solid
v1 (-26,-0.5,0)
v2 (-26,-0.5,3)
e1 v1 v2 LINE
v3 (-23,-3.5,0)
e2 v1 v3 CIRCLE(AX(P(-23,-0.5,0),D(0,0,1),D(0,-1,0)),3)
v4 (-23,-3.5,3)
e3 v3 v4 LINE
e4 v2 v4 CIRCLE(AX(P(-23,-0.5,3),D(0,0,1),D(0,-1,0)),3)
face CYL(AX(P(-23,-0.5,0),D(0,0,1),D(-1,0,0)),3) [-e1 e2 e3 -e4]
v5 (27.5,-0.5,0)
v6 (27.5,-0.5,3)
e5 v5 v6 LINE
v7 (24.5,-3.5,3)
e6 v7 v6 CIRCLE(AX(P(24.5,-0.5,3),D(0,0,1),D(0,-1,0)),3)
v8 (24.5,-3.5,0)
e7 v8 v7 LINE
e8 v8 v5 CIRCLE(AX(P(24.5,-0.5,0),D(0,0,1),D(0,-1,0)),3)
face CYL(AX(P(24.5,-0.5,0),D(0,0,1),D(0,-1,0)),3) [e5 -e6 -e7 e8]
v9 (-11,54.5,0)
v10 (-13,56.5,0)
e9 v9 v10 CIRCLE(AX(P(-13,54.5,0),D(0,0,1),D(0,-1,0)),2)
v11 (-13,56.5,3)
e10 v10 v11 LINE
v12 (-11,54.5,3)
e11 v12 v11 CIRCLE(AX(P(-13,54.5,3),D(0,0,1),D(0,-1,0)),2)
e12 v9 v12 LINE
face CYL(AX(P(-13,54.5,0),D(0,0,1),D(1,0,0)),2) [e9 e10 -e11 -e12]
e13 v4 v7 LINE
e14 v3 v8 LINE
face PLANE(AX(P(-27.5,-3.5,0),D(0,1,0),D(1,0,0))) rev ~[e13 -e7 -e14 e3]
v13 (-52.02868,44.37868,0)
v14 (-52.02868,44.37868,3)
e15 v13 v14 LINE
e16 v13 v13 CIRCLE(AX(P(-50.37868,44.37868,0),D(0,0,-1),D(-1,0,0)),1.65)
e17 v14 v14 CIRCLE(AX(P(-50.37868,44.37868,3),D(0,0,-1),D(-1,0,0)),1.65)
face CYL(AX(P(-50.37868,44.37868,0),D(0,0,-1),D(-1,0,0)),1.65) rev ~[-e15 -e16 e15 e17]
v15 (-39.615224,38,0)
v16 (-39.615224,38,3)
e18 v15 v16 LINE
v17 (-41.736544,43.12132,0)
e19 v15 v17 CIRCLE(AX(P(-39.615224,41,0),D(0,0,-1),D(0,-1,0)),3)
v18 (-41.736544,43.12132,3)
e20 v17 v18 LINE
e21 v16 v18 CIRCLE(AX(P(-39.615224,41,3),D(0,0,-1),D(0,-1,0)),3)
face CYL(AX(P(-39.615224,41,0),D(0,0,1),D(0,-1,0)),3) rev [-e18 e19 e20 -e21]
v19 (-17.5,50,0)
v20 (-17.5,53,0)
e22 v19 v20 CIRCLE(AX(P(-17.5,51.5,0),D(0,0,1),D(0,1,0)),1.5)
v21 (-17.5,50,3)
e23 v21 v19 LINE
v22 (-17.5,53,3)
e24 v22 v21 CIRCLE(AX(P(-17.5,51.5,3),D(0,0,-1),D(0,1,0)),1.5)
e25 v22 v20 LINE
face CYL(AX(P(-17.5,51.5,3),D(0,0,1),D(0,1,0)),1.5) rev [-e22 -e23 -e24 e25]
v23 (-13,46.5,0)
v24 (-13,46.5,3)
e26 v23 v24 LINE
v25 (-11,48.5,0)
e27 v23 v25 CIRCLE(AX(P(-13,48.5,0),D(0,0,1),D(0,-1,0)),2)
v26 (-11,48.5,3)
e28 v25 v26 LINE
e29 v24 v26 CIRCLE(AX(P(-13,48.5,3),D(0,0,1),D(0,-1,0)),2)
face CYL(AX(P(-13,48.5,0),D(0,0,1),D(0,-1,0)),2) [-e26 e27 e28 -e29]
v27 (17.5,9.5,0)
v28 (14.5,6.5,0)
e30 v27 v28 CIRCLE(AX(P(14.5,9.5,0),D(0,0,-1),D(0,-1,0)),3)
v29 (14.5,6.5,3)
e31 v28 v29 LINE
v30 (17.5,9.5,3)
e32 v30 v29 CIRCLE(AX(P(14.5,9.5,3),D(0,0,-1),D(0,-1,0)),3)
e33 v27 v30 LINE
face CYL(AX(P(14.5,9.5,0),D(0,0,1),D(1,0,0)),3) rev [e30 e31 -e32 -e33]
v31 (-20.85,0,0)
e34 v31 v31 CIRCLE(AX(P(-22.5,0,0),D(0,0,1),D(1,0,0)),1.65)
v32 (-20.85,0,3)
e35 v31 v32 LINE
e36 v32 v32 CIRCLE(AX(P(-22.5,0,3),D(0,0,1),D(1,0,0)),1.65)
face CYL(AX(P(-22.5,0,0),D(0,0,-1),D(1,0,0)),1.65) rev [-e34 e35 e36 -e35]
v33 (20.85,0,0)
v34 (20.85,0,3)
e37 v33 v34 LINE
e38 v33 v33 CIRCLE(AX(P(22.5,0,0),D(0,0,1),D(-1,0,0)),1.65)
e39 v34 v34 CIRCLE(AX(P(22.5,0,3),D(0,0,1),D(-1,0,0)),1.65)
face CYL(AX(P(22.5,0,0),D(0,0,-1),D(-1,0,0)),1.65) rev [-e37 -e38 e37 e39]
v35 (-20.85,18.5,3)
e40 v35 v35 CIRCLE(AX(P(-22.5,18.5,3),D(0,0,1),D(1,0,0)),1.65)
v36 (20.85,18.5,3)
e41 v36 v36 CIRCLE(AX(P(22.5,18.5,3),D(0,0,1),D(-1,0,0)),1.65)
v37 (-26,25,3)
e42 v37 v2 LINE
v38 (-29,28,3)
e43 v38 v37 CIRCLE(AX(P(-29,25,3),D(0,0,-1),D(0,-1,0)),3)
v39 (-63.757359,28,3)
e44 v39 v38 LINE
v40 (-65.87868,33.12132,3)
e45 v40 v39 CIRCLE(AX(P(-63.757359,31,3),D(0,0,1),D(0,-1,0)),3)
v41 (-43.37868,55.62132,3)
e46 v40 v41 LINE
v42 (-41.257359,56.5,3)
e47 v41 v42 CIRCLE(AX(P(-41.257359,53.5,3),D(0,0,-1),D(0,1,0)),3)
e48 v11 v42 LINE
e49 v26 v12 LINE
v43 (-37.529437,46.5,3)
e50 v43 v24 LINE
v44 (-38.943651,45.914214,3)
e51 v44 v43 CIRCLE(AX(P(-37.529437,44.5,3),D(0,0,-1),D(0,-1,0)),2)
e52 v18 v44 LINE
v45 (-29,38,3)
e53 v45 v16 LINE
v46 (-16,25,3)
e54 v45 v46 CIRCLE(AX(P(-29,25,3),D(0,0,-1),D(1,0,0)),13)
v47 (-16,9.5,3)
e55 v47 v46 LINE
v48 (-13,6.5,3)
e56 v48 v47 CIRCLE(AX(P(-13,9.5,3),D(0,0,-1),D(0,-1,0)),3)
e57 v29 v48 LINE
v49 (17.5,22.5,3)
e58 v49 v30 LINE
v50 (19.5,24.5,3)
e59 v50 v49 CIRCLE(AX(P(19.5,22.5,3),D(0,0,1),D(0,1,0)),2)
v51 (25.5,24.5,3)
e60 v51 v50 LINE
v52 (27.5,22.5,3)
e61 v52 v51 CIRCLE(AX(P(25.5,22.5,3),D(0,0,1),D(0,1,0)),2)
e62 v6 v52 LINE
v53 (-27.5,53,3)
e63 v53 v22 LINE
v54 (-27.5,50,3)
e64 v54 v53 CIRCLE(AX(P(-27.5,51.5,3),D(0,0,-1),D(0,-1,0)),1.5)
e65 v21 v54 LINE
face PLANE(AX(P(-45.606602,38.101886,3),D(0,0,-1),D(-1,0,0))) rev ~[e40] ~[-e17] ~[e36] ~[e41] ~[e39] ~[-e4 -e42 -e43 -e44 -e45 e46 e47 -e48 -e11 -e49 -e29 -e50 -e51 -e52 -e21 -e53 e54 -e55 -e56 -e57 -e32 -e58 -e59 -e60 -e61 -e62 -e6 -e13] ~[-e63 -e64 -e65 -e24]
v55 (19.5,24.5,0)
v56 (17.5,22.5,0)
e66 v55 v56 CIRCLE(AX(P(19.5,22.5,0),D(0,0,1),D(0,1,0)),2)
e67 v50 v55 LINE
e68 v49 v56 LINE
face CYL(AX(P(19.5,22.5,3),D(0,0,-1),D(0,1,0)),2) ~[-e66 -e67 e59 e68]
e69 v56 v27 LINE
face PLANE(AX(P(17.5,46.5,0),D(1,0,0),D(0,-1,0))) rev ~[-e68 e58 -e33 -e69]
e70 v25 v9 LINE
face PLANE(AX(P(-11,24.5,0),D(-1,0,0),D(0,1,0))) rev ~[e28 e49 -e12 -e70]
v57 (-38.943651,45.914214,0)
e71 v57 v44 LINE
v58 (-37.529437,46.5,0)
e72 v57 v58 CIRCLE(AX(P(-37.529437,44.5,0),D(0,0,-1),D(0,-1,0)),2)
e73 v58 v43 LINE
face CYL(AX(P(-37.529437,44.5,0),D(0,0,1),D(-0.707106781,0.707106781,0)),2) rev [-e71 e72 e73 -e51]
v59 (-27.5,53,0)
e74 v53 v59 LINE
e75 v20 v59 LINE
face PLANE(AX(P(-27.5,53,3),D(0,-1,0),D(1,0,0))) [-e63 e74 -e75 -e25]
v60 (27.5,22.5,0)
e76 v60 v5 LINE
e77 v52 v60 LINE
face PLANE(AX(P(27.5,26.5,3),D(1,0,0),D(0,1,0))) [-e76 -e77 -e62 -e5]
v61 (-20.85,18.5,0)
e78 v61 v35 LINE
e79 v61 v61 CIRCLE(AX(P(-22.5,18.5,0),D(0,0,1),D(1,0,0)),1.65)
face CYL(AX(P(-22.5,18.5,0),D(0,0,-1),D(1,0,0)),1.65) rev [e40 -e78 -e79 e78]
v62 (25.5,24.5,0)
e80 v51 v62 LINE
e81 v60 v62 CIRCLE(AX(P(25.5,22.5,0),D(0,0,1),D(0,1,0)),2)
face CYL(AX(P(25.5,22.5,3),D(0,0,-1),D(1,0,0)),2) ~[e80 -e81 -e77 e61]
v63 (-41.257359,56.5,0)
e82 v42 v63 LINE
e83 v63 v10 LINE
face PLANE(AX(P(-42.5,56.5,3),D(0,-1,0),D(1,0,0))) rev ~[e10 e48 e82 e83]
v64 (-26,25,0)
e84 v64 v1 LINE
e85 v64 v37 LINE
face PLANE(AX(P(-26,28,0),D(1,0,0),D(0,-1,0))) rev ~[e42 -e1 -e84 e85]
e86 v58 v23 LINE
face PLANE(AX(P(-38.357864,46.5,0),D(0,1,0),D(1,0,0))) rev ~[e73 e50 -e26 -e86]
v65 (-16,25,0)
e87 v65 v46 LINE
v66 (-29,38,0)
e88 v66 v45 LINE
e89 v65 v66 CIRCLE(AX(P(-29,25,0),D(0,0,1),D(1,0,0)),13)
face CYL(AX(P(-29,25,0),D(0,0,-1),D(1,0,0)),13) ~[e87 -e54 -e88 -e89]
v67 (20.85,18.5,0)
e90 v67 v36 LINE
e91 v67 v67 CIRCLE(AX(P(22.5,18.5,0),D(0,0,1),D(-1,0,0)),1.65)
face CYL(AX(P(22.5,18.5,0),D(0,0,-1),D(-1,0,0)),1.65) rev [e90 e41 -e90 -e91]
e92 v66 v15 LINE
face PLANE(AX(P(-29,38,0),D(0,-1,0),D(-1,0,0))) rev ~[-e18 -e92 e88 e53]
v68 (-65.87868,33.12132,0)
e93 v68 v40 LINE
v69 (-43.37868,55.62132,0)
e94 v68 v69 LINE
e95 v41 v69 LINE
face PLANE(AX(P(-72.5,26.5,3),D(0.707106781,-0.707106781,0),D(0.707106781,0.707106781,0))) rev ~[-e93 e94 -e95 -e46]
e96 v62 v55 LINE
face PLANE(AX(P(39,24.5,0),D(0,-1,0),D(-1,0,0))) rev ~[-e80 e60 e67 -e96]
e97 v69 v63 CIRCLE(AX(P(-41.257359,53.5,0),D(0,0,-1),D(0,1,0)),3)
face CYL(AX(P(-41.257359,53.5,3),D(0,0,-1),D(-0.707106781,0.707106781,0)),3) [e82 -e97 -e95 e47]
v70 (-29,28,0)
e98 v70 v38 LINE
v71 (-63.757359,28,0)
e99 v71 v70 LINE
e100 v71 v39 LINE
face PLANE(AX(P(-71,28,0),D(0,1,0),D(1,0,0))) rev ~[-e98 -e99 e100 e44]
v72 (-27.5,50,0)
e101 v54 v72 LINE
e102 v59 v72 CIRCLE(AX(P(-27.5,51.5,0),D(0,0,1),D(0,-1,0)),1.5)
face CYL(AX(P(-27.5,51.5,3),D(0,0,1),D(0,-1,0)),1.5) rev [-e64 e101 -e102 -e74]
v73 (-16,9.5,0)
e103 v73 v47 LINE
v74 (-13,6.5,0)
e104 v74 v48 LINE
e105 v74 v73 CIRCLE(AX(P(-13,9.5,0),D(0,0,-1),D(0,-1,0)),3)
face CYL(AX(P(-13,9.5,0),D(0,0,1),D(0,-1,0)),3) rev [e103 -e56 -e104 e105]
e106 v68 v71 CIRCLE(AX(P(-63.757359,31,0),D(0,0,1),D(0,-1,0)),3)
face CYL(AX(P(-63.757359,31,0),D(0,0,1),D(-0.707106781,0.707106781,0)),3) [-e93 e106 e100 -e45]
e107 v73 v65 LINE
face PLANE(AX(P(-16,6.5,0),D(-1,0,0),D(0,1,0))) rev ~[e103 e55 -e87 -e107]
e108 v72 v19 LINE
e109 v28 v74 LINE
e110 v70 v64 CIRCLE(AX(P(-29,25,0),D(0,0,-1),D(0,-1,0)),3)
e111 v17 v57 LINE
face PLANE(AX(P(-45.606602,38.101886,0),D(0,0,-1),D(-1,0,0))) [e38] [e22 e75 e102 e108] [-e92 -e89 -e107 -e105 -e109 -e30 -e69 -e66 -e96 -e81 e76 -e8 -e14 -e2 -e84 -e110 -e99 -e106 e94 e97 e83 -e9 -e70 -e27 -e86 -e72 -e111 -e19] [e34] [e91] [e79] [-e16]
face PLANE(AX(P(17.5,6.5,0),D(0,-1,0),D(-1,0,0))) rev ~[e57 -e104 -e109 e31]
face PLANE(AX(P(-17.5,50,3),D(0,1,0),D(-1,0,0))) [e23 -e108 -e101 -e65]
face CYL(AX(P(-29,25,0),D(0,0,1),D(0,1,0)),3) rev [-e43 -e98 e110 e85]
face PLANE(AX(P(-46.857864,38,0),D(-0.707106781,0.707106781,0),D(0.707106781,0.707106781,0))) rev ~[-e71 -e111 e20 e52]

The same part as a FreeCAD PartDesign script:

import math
import FreeCAD as App
import Part
import Sketcher

V = App.Vector
Q = App.Units.Quantity


def edges_at(feature, points):
    """Names of the edges that pass closest to the given points."""
    edges = feature.Shape.Edges
    near = lambda p: min(range(len(edges)), key=lambda i: edges[i].distToShape(Part.Vertex(*p))[0])
    return sorted({f"Edge{near(p) + 1}" for p in points})


def add_polygon(sketch, points):
    """Adds a closed chain of lines whose ends are joined by coincident constraints."""
    first, n = sketch.GeometryCount, len(points)
    for a, b in zip(points, points[1:] + points[:1]):
        sketch.addGeometry(Part.LineSegment(App.Vector(*a, 0), App.Vector(*b, 0)), False)
    for i in range(n):
        sketch.addConstraint(Sketcher.Constraint("Coincident", first + i, 2, first + (i + 1) % n, 1))

doc = App.newDocument("Part")
body = doc.addObject("PartDesign::Body", "Body")

sketch1 = body.newObject("Sketcher::SketchObject", "Sketch")
sketch1.AttachmentSupport = (doc.getObject("XY_Plane"), [""])
sketch1.MapMode = "FlatFace"
add_polygon(sketch1, [(-27.5, 26.5), (-27.5, -3.5), (27.5, -3.5), (27.5, 26.5)])
sketch1.addGeometry(Part.Circle(V(-22.5, 0, 0), V(0, 0, 1), 1.6), False)
sketch1.addGeometry(Part.Circle(V(22.5, 0, 0), V(0, 0, 1), 1.6), False)
sketch1.addGeometry(Part.Circle(V(-22.5, 18.5, 0), V(0, 0, 1), 1.6), False)
sketch1.addGeometry(Part.Circle(V(22.5, 18.5, 0), V(0, 0, 1), 1.6), False)
sketch1.addConstraint([
    Sketcher.Constraint("Vertical", 0),
    Sketcher.Constraint("Horizontal", 1),
    Sketcher.Constraint("Vertical", 2),
    Sketcher.Constraint("Horizontal", 3),
    Sketcher.Constraint("Equal", 4, 5),
    Sketcher.Constraint("Equal", 5, 6),
    Sketcher.Constraint("Equal", 6, 7),
    Sketcher.Constraint("Symmetric", 4, 3, 5, 3, -1, 1),
    Sketcher.Constraint("Symmetric", 6, 3, 7, 3, -2),
    Sketcher.Constraint("PointOnObject", 4, 3, -1),
    Sketcher.Constraint("Vertical", 4, 3, 6, 3),
    Sketcher.Constraint("Diameter", 4, 3.3),
    Sketcher.Constraint("DistanceX", 1, 1, 1, 2, 55.0),
    Sketcher.Constraint("DistanceY", 0, 2, 0, 1, 30.0),
    Sketcher.Constraint("DistanceX", 4, 3, 5, 3, 45.0),
    Sketcher.Constraint("DistanceX", 0, 2, 4, 3, 5.0),
    Sketcher.Constraint("DistanceY", 0, 2, 6, 3, 22.0),
    Sketcher.Constraint("DistanceY", -1, 1, 6, 3, 18.5),
])
pad1 = body.newObject("PartDesign::Pad", "Pad")
pad1.Profile = sketch1
pad1.Length = 3

sketch2 = body.newObject("Sketcher::SketchObject", "Sketch001")
sketch2.AttachmentSupport = (doc.getObject("XY_Plane"), [""])
sketch2.MapMode = "FlatFace"
sketch2.AttachmentOffset = App.Placement(V(0, 0, 3), App.Rotation())
add_polygon(sketch2, [(-28, 56), (-28, 26), (28, 26), (28, 56)])
sketch2.addConstraint([
    Sketcher.Constraint("Vertical", 0),
    Sketcher.Constraint("Horizontal", 1),
    Sketcher.Constraint("Vertical", 2),
    Sketcher.Constraint("Horizontal", 3),
    Sketcher.Constraint("DistanceX", 1, 1, 1, 2, 55.0),
    Sketcher.Constraint("DistanceY", 0, 2, 0, 1, 30.0),
    Sketcher.Constraint("DistanceX", 0, 2, -1, 1, 27.5),
    Sketcher.Constraint("DistanceY", -1, 1, 0, 2, 26.5),
])
pad2 = body.newObject("PartDesign::Pad", "Pad001")
pad2.Profile = sketch2
pad2.Length = 3
pad2.Reversed = True

sketch3 = body.newObject("Sketcher::SketchObject", "Sketch002")
sketch3.AttachmentSupport = (doc.getObject("XY_Plane"), [""])
sketch3.MapMode = "FlatFace"
sketch3.AttachmentOffset = App.Placement(V(0, 0, 3), App.Rotation())
add_polygon(sketch3, [(-72, 26), (-28, 26), (-28, 56), (-42, 56)])
sketch3.addConstraint([
    Sketcher.Constraint("Horizontal", 0),
    Sketcher.Constraint("Vertical", 1),
    Sketcher.Constraint("Horizontal", 2),
    Sketcher.Constraint("DistanceX", 0, 1, 0, 2, 45.0),
    Sketcher.Constraint("DistanceX", 2, 2, 2, 1, 15.0),
    Sketcher.Constraint("DistanceY", 1, 1, 1, 2, 30.0),
    Sketcher.Constraint("DistanceX", 0, 2, -1, 1, 27.5),
    Sketcher.Constraint("DistanceY", -1, 1, 0, 2, 26.5),
])
pad3 = body.newObject("PartDesign::Pad", "Pad002")
pad3.Profile = sketch3
pad3.Length = 3
pad3.Reversed = True

sketch4 = body.newObject("Sketcher::SketchObject", "Sketch003")
sketch4.AttachmentSupport = (doc.getObject("XY_Plane"), [""])
sketch4.MapMode = "FlatFace"
sketch4.addGeometry(Part.Circle(V(-50.4, 44.4, 0), V(0, 0, 1), 1.6), False)
sketch4.addConstraint([
    Sketcher.Constraint("Diameter", 0, 3.3),
    Sketcher.Constraint("DistanceX", 0, 3, -1, 1, 50.37868),
    Sketcher.Constraint("DistanceY", -1, 1, 0, 3, 44.37868),
])
pocket1 = body.newObject("PartDesign::Pocket", "Pocket")
pocket1.Profile = sketch4
pocket1.Length = 10
pocket1.Reversed = True
doc.recompute()

fillet = body.newObject("PartDesign::Fillet", "Fillet")
fillet.Base = (pocket1, edges_at(pocket1, [(27.5, 56.5, 1.5), (-42.5, 56.5, 1.5), (27.5, -3.5, 1.5)]))
fillet.Radius = 3

sketch5 = body.newObject("Sketcher::SketchObject", "Sketch004")
sketch5.AttachmentSupport = (doc.getObject("XY_Plane"), [""])
sketch5.MapMode = "FlatFace"
sketch5.AttachmentOffset = App.Placement(V(0, 0, 3), App.Rotation())
sketch5.addGeometry([
    Part.LineSegment(V(-17.5, 53, 0), V(-27.5, 53, 0)),
    Part.ArcOfCircle(Part.Circle(V(-27.5, 51.5, 0), V(0, 0, 1), 1.5), math.radians(90), math.radians(270)),
    Part.LineSegment(V(-27.5, 50, 0), V(-17.5, 50, 0)),
    Part.ArcOfCircle(Part.Circle(V(-17.5, 51.5, 0), V(0, 0, 1), 1.5), math.radians(-90), math.radians(90)),
], False)
sketch5.addConstraint([
    Sketcher.Constraint("Tangent", 0, 2, 1, 1),
    Sketcher.Constraint("Tangent", 1, 2, 2, 1),
    Sketcher.Constraint("Tangent", 2, 2, 3, 1),
    Sketcher.Constraint("Tangent", 3, 2, 0, 1),
    Sketcher.Constraint("Horizontal", 0),
    Sketcher.Constraint("Horizontal", 2),
    Sketcher.Constraint("Radius", 1, 1.5),
    Sketcher.Constraint("DistanceX", 0, 2, 0, 1, 10.0),
    Sketcher.Constraint("DistanceY", -1, 1, 0, 2, 53.0),
    Sketcher.Constraint("DistanceX", 1, 3, -1, 1, 27.5),
])
pocket2 = body.newObject("PartDesign::Pocket", "Pocket001")
pocket2.Profile = sketch5
pocket2.Length = 10

sketch6 = body.newObject("Sketcher::SketchObject", "Sketch005")
sketch6.AttachmentSupport = (doc.getObject("XY_Plane"), [""])
sketch6.MapMode = "FlatFace"
add_polygon(sketch6, [(-71, 28), (-26, 28), (-26, -3.5), (-27.5, -3.5), (-27.5, 26.5), (-72.5, 26.5)])
sketch6.addConstraint([
    Sketcher.Constraint("Horizontal", 0),
    Sketcher.Constraint("Vertical", 1),
    Sketcher.Constraint("Horizontal", 2),
    Sketcher.Constraint("Vertical", 3),
    Sketcher.Constraint("Horizontal", 4),
    Sketcher.Constraint("Equal", 0, 4),
    Sketcher.Constraint("DistanceX", 0, 1, 0, 2, 45.0),
    Sketcher.Constraint("DistanceY", 3, 1, 3, 2, 30.0),
    Sketcher.Constraint("Angle", 5, Q("45 deg")),
    Sketcher.Constraint("DistanceX", 2, 2, 2, 1, 1.5),
    Sketcher.Constraint("DistanceX", 0, 2, -1, 1, 26.0),
    Sketcher.Constraint("DistanceY", -1, 1, 0, 2, 28.0),
])
pocket3 = body.newObject("PartDesign::Pocket", "Pocket002")
pocket3.Profile = sketch6
pocket3.Type = "ThroughAll"
pocket3.Reversed = True
doc.recompute()

fillet2 = body.newObject("PartDesign::Fillet", "Fillet001")
fillet2.Base = (pocket3, edges_at(pocket3, [(-26, -3.5, 1.5), (-26, 28, 1.5), (-71, 28, 1.5)]))
fillet2.Radius = 3

sketch7 = body.newObject("Sketcher::SketchObject", "Sketch006")
sketch7.AttachmentSupport = (doc.getObject("XY_Plane"), [""])
sketch7.MapMode = "FlatFace"
sketch7.addGeometry([
    Part.LineSegment(V(-29, 38, 0), V(-47, 38, 0)),
    Part.LineSegment(V(-47, 38, 0), V(-38, 46, 0)),
    Part.LineSegment(V(-38, 46, 0), V(18, 46, 0)),
    Part.LineSegment(V(18, 46, 0), V(18, 6, 0)),
    Part.LineSegment(V(18, 6, 0), V(-16, 6, 0)),
    Part.LineSegment(V(-16, 6, 0), V(-16, 25, 0)),
    Part.ArcOfCircle(Part.Circle(V(-29, 25, 0), V(0, 0, 1), 13), math.radians(0), math.radians(90)),
], False)
sketch7.addConstraint([
    Sketcher.Constraint("Coincident", 0, 2, 1, 1),
    Sketcher.Constraint("Coincident", 1, 2, 2, 1),
    Sketcher.Constraint("Coincident", 2, 2, 3, 1),
    Sketcher.Constraint("Coincident", 3, 2, 4, 1),
    Sketcher.Constraint("Coincident", 4, 2, 5, 1),
    Sketcher.Constraint("Tangent", 5, 2, 6, 1),
    Sketcher.Constraint("Tangent", 6, 2, 0, 1),
    Sketcher.Constraint("Horizontal", 0),
    Sketcher.Constraint("Horizontal", 2),
    Sketcher.Constraint("Vertical", 3),
    Sketcher.Constraint("Horizontal", 4),
    Sketcher.Constraint("Vertical", 5),
    Sketcher.Constraint("Radius", 6, 13.0),
    Sketcher.Constraint("DistanceY", 3, 2, 3, 1, 40.0),
    Sketcher.Constraint("Angle", 1, Q("45 deg")),
    Sketcher.Constraint("DistanceX", 4, 2, 4, 1, 33.5),
    Sketcher.Constraint("DistanceY", 5, 1, 5, 2, 18.5),
    Sketcher.Constraint("DistanceX", 6, 3, -1, 1, 29.0),
    Sketcher.Constraint("DistanceY", -1, 1, 6, 3, 25.0),
    Sketcher.Constraint("DistanceX", 0, 2, 0, 1, 17.857864),
])
pocket4 = body.newObject("PartDesign::Pocket", "Pocket003")
pocket4.Profile = sketch7
pocket4.Type = "ThroughAll"
pocket4.Reversed = True
doc.recompute()

fillet3 = body.newObject("PartDesign::Fillet", "Fillet002")
fillet3.Base = (pocket4, edges_at(pocket4, [
    (-16, 6.5, 1.5),
    (17.5, 6.5, 1.5),
    (17.5, 46.5, 1.5),
    (-46.858, 38, 1.5),
]))
fillet3.Radius = 3

sketch8 = body.newObject("Sketcher::SketchObject", "Sketch007")
sketch8.AttachmentSupport = (doc.getObject("XY_Plane"), [""])
sketch8.MapMode = "FlatFace"
add_polygon(sketch8, [(39, 56), (39, 24), (-11, 24), (-11, 56)])
sketch8.addConstraint([
    Sketcher.Constraint("Vertical", 0),
    Sketcher.Constraint("Horizontal", 1),
    Sketcher.Constraint("Vertical", 2),
    Sketcher.Constraint("Horizontal", 3),
    Sketcher.Constraint("DistanceX", 1, 2, 1, 1, 50.0),
    Sketcher.Constraint("DistanceY", 0, 2, 0, 1, 32.0),
    Sketcher.Constraint("DistanceX", -1, 1, 0, 2, 39.0),
    Sketcher.Constraint("DistanceY", -1, 1, 0, 2, 24.5),
])
pocket5 = body.newObject("PartDesign::Pocket", "Pocket004")
pocket5.Profile = sketch8
pocket5.Type = "ThroughAll"
pocket5.Reversed = True
doc.recompute()

fillet4 = body.newObject("PartDesign::Fillet", "Fillet003")
fillet4.Base = (pocket5, edges_at(pocket5, [
    (-38.358, 46.5, 1.5),
    (-11, 46.5, 1.5),
    (17.5, 24.5, 1.5),
    (27.5, 24.5, 1.5),
    (-11, 56.5, 1.5),
]))
fillet4.Radius = 2

doc.recompute()
